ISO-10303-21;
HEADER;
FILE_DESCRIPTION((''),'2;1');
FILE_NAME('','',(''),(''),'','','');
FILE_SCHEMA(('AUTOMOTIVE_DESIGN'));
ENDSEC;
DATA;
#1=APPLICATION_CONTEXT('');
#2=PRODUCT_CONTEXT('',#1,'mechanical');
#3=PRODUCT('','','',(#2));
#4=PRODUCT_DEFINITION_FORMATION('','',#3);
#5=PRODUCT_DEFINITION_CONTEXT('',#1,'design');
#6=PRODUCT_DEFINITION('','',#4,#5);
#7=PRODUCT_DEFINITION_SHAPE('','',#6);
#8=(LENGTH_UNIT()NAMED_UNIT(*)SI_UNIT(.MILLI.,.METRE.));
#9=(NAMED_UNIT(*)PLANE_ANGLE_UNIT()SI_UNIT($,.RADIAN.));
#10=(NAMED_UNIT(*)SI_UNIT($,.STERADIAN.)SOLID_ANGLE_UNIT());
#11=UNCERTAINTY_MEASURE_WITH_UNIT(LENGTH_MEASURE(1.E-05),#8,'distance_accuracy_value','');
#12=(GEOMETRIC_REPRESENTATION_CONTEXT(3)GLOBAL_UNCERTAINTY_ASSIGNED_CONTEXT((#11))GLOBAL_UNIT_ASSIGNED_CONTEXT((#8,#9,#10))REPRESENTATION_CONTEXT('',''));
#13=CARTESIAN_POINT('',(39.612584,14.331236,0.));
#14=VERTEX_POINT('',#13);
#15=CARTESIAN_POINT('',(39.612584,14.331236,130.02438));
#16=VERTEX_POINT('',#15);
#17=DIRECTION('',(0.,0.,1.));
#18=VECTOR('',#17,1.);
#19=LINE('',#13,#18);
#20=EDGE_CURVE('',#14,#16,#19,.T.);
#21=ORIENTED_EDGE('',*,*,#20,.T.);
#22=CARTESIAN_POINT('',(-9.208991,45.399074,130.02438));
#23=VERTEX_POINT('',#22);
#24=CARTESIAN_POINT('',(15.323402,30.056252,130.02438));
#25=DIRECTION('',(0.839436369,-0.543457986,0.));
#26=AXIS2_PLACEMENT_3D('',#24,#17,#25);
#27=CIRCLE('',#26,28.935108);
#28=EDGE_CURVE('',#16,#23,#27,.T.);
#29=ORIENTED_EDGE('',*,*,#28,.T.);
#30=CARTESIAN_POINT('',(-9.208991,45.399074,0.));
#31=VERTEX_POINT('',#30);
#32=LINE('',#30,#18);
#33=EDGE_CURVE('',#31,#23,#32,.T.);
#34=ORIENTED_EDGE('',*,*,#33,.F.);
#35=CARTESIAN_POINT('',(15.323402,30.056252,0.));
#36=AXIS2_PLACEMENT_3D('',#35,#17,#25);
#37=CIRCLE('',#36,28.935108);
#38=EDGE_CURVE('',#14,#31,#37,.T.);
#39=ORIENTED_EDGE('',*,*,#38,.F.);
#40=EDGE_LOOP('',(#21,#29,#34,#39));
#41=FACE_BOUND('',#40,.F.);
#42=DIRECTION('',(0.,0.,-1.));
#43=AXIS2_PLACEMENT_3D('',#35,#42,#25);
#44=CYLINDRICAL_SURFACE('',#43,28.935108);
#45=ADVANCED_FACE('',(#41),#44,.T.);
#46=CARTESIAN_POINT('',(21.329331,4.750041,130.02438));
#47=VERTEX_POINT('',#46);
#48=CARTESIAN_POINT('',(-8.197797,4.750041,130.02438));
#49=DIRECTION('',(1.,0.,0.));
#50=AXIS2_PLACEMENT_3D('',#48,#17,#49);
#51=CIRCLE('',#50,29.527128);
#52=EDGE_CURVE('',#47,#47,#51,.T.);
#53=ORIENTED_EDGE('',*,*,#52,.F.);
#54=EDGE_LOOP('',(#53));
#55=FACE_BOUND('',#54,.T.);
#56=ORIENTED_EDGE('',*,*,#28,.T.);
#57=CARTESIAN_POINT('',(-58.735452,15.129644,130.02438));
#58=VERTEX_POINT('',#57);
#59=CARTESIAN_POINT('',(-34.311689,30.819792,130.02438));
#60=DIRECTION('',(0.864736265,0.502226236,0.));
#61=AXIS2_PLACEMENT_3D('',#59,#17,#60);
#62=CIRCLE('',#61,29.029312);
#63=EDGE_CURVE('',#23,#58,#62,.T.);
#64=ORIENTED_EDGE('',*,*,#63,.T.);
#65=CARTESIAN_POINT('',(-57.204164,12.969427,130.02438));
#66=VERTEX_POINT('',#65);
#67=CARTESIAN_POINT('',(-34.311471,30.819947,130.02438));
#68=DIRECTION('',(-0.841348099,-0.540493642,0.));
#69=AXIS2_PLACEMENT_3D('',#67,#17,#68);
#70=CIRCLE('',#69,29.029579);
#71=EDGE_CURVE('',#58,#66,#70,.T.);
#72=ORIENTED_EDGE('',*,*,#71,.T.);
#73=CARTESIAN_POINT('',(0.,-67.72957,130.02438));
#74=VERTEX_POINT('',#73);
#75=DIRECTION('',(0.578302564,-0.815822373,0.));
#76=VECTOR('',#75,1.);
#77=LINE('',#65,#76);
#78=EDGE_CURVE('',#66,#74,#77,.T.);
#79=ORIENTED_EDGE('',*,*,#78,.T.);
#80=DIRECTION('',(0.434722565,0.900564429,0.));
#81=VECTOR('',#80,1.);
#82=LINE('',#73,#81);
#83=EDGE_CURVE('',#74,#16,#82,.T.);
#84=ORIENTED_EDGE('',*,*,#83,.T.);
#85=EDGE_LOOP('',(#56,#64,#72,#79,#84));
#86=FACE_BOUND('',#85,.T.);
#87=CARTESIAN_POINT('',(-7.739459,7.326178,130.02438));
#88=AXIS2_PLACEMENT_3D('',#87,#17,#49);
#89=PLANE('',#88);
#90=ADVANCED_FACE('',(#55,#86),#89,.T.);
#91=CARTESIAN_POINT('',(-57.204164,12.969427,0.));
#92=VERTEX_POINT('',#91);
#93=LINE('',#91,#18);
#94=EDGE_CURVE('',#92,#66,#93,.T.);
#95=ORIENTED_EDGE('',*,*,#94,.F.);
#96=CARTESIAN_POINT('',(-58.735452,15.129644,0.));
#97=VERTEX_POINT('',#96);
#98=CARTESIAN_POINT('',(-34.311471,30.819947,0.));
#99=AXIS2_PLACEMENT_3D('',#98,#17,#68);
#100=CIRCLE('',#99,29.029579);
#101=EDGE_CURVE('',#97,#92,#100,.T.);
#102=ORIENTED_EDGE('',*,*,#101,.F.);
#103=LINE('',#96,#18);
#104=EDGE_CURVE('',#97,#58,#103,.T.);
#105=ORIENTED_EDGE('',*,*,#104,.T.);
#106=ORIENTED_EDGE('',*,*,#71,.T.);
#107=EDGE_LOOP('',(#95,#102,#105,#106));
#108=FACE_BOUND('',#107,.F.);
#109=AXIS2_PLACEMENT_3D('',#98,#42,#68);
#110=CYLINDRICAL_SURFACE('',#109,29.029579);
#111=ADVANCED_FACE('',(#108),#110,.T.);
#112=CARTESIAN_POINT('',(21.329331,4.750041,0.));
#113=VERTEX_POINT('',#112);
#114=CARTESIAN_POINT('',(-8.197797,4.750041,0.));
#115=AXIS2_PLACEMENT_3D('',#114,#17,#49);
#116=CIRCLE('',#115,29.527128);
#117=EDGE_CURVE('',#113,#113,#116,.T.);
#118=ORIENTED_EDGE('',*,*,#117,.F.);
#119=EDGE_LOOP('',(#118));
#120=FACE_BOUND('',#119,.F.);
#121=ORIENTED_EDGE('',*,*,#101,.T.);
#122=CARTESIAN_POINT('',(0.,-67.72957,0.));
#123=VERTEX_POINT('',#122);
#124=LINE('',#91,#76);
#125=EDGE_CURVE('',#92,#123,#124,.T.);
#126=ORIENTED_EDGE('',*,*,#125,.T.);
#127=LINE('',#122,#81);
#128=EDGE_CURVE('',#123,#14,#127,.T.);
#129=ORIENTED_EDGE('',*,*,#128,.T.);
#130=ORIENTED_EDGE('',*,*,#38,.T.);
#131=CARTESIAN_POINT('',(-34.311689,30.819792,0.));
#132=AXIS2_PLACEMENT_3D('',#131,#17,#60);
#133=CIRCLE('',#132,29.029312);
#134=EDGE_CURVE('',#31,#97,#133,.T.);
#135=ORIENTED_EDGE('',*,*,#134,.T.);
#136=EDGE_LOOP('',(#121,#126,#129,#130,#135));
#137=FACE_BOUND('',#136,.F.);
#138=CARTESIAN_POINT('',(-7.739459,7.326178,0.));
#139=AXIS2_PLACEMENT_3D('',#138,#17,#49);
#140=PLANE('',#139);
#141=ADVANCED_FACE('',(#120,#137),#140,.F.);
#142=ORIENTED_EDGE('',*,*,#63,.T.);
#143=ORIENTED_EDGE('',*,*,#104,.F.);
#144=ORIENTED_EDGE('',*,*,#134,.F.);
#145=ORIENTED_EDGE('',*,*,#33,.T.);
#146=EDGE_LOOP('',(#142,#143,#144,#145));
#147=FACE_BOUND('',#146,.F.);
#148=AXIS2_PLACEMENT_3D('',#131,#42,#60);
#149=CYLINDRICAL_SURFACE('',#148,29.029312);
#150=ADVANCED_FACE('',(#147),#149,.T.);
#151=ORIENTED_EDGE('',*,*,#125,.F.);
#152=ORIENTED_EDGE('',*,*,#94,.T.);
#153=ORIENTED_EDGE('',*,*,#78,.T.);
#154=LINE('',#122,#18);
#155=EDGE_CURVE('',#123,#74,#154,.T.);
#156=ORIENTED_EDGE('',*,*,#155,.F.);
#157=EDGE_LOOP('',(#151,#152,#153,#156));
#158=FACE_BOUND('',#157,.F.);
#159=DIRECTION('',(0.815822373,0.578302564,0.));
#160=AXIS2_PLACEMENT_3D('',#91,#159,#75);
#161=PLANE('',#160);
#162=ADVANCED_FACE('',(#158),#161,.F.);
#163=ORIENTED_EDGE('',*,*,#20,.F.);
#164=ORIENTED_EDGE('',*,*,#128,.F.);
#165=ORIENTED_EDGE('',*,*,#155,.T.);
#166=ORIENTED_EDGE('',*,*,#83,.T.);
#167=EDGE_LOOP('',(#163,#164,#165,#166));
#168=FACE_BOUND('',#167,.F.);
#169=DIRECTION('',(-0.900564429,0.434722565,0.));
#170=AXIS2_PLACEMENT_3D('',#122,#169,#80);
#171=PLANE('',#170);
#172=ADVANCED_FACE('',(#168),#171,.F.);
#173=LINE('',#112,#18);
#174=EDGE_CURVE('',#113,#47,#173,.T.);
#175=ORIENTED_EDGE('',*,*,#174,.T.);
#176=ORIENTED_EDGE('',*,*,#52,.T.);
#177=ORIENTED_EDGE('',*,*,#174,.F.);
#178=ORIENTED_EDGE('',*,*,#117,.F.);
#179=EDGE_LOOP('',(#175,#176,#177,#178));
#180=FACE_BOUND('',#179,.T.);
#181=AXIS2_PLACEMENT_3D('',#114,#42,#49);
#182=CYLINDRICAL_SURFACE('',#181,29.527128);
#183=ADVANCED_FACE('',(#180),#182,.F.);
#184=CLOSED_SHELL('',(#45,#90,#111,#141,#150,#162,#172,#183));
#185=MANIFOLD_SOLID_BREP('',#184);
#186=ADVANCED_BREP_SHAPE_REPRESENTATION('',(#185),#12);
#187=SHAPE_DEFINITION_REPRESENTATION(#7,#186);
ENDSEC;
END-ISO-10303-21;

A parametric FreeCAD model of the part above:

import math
import FreeCAD as App
import Part
import Sketcher

doc = App.newDocument("Part")
body = doc.addObject("PartDesign::Body", "Body")

sketch1 = body.newObject("Sketcher::SketchObject", "Sketch")
sketch1.AttachmentSupport = (doc.getObject("XY_Plane"), [""])
sketch1.MapMode = "FlatFace"
sketch1.addGeometry([
    Part.ArcOfCircle(Part.Circle(App.Vector(15.323402, 30.056252, 0), App.Vector(0, 0, 1), 28.935108), math.radians(-32.919351), math.radians(147.977696)),
    Part.ArcOfCircle(Part.Circle(App.Vector(-34.311689, 30.819792, 0), App.Vector(0, 0, 1), 29.029312), math.radians(30.147396), math.radians(212.717226)),
    Part.ArcOfCircle(Part.Circle(App.Vector(-34.311471, 30.819947, 0), App.Vector(0, 0, 1), 29.029579), math.radians(-147.282751), math.radians(-142.054766)),
    Part.LineSegment(App.Vector(-57.204164, 12.969427, 0), App.Vector(0, -67.72957, 0)),
    Part.LineSegment(App.Vector(0, -67.72957, 0), App.Vector(39.612584, 14.331236, 0)),
    Part.Circle(App.Vector(-8.197797, 4.750041, 0), App.Vector(0, 0, 1), 29.527128),
], False)
sketch1.addConstraint([
    Sketcher.Constraint("Coincident", 0, 2, 1, 1),
    Sketcher.Constraint("Tangent", 1, 2, 2, 1),
    Sketcher.Constraint("Coincident", 2, 2, 3, 1),
    Sketcher.Constraint("Coincident", 3, 2, 4, 1),
    Sketcher.Constraint("Coincident", 4, 2, 0, 1),
    Sketcher.Constraint("PointOnObject", 3, 2, -2),
    Sketcher.Constraint("Radius", 0, 28.935108),
    Sketcher.Constraint("Radius", 1, 29.029312),
    Sketcher.Constraint("Radius", 2, 29.029579),
    Sketcher.Constraint("Diameter", 5, 59.054256),
    Sketcher.Constraint("DistanceX", -1, 1, 0, 3, 15.323402),
    Sketcher.Constraint("DistanceX", 5, 3, 0, 3, 23.521199),
    Sketcher.Constraint("DistanceX", 1, 3, 0, 2, 25.102698),
    Sketcher.Constraint("Distance", 3, 98.917362),
    Sketcher.Constraint("DistanceY", -1, 1, 0, 3, 30.056252),
    Sketcher.Constraint("DistanceX", 1, 3, -1, 1, 34.311689),
    Sketcher.Constraint("DistanceY", -1, 1, 5, 3, 4.750041),
    Sketcher.Constraint("DistanceY", 3, 2, -1, 1, 67.72957),
    Sketcher.Constraint("DistanceY", 1, 2, 1, 3, 15.690148),
    Sketcher.Constraint("DistanceX", 5, 3, 4, 2, 47.810381),
])
pad1 = body.newObject("PartDesign::Pad", "Pad")
pad1.Profile = sketch1
pad1.Length = 130.02438

doc.recompute()
